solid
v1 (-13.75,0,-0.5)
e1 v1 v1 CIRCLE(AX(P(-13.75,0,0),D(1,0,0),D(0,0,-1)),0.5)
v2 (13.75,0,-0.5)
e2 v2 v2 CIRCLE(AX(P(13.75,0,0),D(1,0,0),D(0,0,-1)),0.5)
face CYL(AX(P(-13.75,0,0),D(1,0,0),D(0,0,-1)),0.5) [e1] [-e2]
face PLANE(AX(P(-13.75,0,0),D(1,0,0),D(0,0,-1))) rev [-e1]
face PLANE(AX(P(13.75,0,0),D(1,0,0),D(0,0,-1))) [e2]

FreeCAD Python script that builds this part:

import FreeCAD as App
import Part
import Sketcher
Q = App.Units.Quantity

doc = App.newDocument("Part")
body = doc.addObject("PartDesign::Body", "Body")

sketch1 = body.newObject("Sketcher::SketchObject", "Sketch")
sketch1.AttachmentSupport = (doc.getObject("YZ_Plane"), [""])
sketch1.MapMode = "FlatFace"
sketch1.addGeometry(Part.Circle(App.Vector(0, 0, 0), App.Vector(0, 0, 1), 0.5), False)
sketch1.addConstraint([
    Sketcher.Constraint("Coincident", 0, 3, -1, 1),
    Sketcher.Constraint("Diameter", 0, Q("1 mm")),
])
pad1 = body.newObject("PartDesign::Pad", "Pad")
pad1.Profile = sketch1
pad1.Type = "TwoLengths"
pad1.Length = 13.75
pad1.Length2 = 13.75

doc.recompute()
